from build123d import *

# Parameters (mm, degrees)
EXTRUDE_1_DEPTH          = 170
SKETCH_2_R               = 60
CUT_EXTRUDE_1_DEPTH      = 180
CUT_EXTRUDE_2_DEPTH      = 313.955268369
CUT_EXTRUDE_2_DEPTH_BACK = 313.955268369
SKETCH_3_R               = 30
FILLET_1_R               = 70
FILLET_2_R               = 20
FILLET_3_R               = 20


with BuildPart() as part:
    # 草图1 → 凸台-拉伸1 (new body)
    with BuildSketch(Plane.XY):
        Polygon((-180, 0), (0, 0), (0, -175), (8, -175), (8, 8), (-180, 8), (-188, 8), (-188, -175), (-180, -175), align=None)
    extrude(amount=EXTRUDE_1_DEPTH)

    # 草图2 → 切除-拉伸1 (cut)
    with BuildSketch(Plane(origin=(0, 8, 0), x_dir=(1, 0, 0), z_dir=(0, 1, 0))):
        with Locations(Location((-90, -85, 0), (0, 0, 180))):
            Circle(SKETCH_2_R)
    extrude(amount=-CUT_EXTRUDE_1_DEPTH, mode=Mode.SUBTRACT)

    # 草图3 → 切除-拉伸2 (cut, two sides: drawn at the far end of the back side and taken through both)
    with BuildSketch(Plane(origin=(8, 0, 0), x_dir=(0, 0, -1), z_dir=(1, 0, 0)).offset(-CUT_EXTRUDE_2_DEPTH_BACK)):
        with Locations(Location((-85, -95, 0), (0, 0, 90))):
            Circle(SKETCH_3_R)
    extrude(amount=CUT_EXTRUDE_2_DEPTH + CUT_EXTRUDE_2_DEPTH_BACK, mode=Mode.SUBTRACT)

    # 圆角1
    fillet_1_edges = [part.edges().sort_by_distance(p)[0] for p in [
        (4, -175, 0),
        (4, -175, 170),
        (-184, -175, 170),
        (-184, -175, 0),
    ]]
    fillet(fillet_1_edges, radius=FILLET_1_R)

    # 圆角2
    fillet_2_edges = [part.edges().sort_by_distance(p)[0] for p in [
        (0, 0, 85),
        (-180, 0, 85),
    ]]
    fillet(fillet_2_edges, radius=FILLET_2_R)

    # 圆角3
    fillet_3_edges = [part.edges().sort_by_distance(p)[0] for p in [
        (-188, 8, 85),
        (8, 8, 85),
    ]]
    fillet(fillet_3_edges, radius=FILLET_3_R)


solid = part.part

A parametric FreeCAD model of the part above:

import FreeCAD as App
import Part
import Sketcher


def edges_at(feature, points):
    """Names of the edges that pass closest to the given points."""
    edges = feature.Shape.Edges
    near = lambda p: min(range(len(edges)), key=lambda i: edges[i].distToShape(Part.Vertex(*p))[0])
    return sorted({f"Edge{near(p) + 1}" for p in points})


def add_polygon(sketch, points):
    """Adds a closed chain of lines whose ends are joined by coincident constraints."""
    first, n = sketch.GeometryCount, len(points)
    for a, b in zip(points, points[1:] + points[:1]):
        sketch.addGeometry(Part.LineSegment(App.Vector(*a, 0), App.Vector(*b, 0)), False)
    for i in range(n):
        sketch.addConstraint(Sketcher.Constraint("Coincident", first + i, 2, first + (i + 1) % n, 1))

doc = App.newDocument("Part")
body = doc.addObject("PartDesign::Body", "Body")

sketch1 = body.newObject("Sketcher::SketchObject", "Sketch")
sketch1.AttachmentSupport = (doc.getObject("XY_Plane"), [""])
sketch1.MapMode = "FlatFace"
add_polygon(sketch1, [(-180, 0), (0, 0), (0, -175), (8, -175), (8, 8), (-188, 8), (-188, -175), (-180, -175)])
sketch1.addConstraint([
    Sketcher.Constraint("Horizontal", 0),
    Sketcher.Constraint("Vertical", 1),
    Sketcher.Constraint("Horizontal", 2),
    Sketcher.Constraint("Vertical", 3),
    Sketcher.Constraint("Horizontal", 4),
    Sketcher.Constraint("Vertical", 5),
    Sketcher.Constraint("Horizontal", 6),
    Sketcher.Constraint("Vertical", 7),
    Sketcher.Constraint("Coincident", 0, 2, -1, 1),
    Sketcher.Constraint("Horizontal", 2, 2, 5, 2),
    Sketcher.Constraint("Equal", 2, 6),
    Sketcher.Constraint("DistanceX", 0, 1, 0, 2, 180.0),
    Sketcher.Constraint("DistanceX", 2, 1, 2, 2, 8.0),
    Sketcher.Constraint("DistanceY", 1, 2, 1, 1, 175.0),
    Sketcher.Constraint("DistanceY", 3, 1, 3, 2, 183.0),
])
pad1 = body.newObject("PartDesign::Pad", "Pad")
pad1.Profile = sketch1
pad1.Length = 170

sketch2 = body.newObject("Sketcher::SketchObject", "Sketch001")
sketch2.AttachmentSupport = (doc.getObject("XZ_Plane"), [""])
sketch2.MapMode = "FlatFace"
sketch2.AttachmentOffset = App.Placement(App.Vector(0, 0, -8), App.Rotation())
sketch2.addGeometry(Part.Circle(App.Vector(-90, 85, 0), App.Vector(0, 0, 1), 60), False)
sketch2.addConstraint([
    Sketcher.Constraint("Diameter", 0, 120.0),
    Sketcher.Constraint("DistanceX", 0, 3, -1, 1, 90.0),
    Sketcher.Constraint("DistanceY", -1, 1, 0, 3, 85.0),
])
pocket1 = body.newObject("PartDesign::Pocket", "Pocket")
pocket1.Profile = sketch2
pocket1.Length = 180
pocket1.Reversed = True

sketch3 = body.newObject("Sketcher::SketchObject", "Sketch002")
sketch3.AttachmentSupport = (doc.getObject("YZ_Plane"), [""])
sketch3.MapMode = "FlatFace"
sketch3.AttachmentOffset = App.Placement(App.Vector(0, 0, 8), App.Rotation())
sketch3.addGeometry(Part.Circle(App.Vector(-95, 85, 0), App.Vector(0, 0, 1), 30), False)
sketch3.addConstraint([
    Sketcher.Constraint("Diameter", 0, 60.0),
    Sketcher.Constraint("DistanceX", 0, 3, -1, 1, 95.0),
    Sketcher.Constraint("DistanceY", -1, 1, 0, 3, 85.0),
])
pocket2 = body.newObject("PartDesign::Pocket", "Pocket001")
pocket2.Profile = sketch3
pocket2.Type = "ThroughAll"
pocket2.Midplane = True
doc.recompute()

fillet = body.newObject("PartDesign::Fillet", "Fillet")
fillet.Base = (pocket2, edges_at(pocket2, [
    (4, -175, 0),
    (4, -175, 170),
    (-184, -175, 170),
    (-184, -175, 0),
]))
fillet.Radius = 70
doc.recompute()

fillet2 = body.newObject("PartDesign::Fillet", "Fillet001")
fillet2.Base = (fillet, edges_at(fillet, [(0, 0, 85), (-180, 0, 85)]))
fillet2.Radius = 20
doc.recompute()

fillet3 = body.newObject("PartDesign::Fillet", "Fillet002")
fillet3.Base = (fillet2, edges_at(fillet2, [(-188, 8, 85), (8, 8, 85)]))
fillet3.Radius = 20

doc.recompute()
